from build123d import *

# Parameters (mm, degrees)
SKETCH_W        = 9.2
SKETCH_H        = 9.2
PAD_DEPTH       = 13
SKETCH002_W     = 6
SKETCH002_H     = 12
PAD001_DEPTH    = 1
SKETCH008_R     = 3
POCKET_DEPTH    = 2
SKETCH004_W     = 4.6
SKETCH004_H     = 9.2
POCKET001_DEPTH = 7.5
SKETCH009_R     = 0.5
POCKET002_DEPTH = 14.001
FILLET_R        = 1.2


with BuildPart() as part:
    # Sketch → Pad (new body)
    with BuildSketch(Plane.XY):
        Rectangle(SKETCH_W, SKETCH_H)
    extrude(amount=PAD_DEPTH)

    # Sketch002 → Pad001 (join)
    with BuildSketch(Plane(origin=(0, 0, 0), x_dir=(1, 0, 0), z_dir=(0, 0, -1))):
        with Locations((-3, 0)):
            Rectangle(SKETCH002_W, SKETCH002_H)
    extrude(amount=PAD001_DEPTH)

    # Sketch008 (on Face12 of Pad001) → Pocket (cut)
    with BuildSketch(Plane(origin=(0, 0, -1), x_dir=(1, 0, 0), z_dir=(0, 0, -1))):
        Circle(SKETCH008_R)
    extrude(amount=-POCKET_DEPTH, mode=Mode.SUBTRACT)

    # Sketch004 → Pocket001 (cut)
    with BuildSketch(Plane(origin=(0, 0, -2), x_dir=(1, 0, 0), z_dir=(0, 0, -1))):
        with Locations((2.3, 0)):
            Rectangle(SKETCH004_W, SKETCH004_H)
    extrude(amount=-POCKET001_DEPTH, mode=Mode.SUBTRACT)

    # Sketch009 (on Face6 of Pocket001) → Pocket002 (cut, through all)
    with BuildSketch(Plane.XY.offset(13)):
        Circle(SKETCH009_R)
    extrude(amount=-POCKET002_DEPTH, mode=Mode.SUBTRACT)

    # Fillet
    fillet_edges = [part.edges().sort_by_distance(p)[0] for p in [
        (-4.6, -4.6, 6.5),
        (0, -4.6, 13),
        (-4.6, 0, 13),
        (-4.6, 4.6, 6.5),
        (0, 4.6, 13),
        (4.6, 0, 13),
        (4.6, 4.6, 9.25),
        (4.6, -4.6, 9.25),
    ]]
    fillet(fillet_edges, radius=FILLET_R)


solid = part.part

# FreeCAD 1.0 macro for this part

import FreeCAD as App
import Part
import Sketcher
from FreeCAD import Vector


def edges_at(feature, points):
    """Names of the edges that pass closest to the given points."""
    edges = feature.Shape.Edges
    near = lambda p: min(range(len(edges)), key=lambda i: edges[i].distToShape(Part.Vertex(*p))[0])
    return sorted({f"Edge{near(p) + 1}" for p in points})

doc = App.newDocument("Part")
body = doc.addObject("PartDesign::Body", "Body")

# Sketch on XY plane
sketch1 = body.newObject("Sketcher::SketchObject", "Sketch")
sketch1.AttachmentSupport = (doc.getObject("XY_Plane"), [""])
sketch1.MapMode = "FlatFace"
sketch1.addGeometry(Part.LineSegment(Vector(-5, 5, 0), Vector(-5, -5, 0)), False)
sketch1.addGeometry(Part.LineSegment(Vector(-5, -5, 0), Vector(5, -5, 0)), False)
sketch1.addGeometry(Part.LineSegment(Vector(5, -5, 0), Vector(5, 5, 0)), False)
sketch1.addGeometry(Part.LineSegment(Vector(5, 5, 0), Vector(-5, 5, 0)), False)
sketch1.addConstraint(Sketcher.Constraint("Coincident", 0, 2, 1, 1))
sketch1.addConstraint(Sketcher.Constraint("Coincident", 1, 2, 2, 1))
sketch1.addConstraint(Sketcher.Constraint("Coincident", 2, 2, 3, 1))
sketch1.addConstraint(Sketcher.Constraint("Coincident", 3, 2, 0, 1))
sketch1.addConstraint(Sketcher.Constraint("Vertical", 0))
sketch1.addConstraint(Sketcher.Constraint("Horizontal", 1))
sketch1.addConstraint(Sketcher.Constraint("Vertical", 2))
sketch1.addConstraint(Sketcher.Constraint("Horizontal", 3))
sketch1.addConstraint(Sketcher.Constraint("Symmetric", 0, 2, 2, 2, -1, 1))
sketch1.addConstraint(Sketcher.Constraint("Equal", 3, 0))
sketch1.addConstraint(Sketcher.Constraint("DistanceX", 1, 1, 1, 2, 9.2))
pad1 = body.newObject("PartDesign::Pad", "Pad")
pad1.Profile = sketch1
pad1.Length = 13

# Sketch on XY plane
sketch2 = body.newObject("Sketcher::SketchObject", "Sketch001")
sketch2.AttachmentSupport = (doc.getObject("XY_Plane"), [""])
sketch2.MapMode = "FlatFace"
sketch2.addGeometry(Part.LineSegment(Vector(-6, -6, 0), Vector(-6, 6, 0)), False)
sketch2.addGeometry(Part.LineSegment(Vector(-6, 6, 0), Vector(0, 6, 0)), False)
sketch2.addGeometry(Part.LineSegment(Vector(0, 6, 0), Vector(0, -6, 0)), False)
sketch2.addGeometry(Part.LineSegment(Vector(0, -6, 0), Vector(-6, -6, 0)), False)
sketch2.addConstraint(Sketcher.Constraint("Coincident", 0, 2, 1, 1))
sketch2.addConstraint(Sketcher.Constraint("Coincident", 1, 2, 2, 1))
sketch2.addConstraint(Sketcher.Constraint("Coincident", 2, 2, 3, 1))
sketch2.addConstraint(Sketcher.Constraint("Coincident", 3, 2, 0, 1))
sketch2.addConstraint(Sketcher.Constraint("Vertical", 0))
sketch2.addConstraint(Sketcher.Constraint("Horizontal", 1))
sketch2.addConstraint(Sketcher.Constraint("Vertical", 2))
sketch2.addConstraint(Sketcher.Constraint("Horizontal", 3))
sketch2.addConstraint(Sketcher.Constraint("Symmetric", 1, 2, 2, 2, -1, 1))
sketch2.addConstraint(Sketcher.Constraint("DistanceX", 1, 1, 1, 2, 6.0))
sketch2.addConstraint(Sketcher.Constraint("DistanceY", 0, 1, 0, 2, 12.0))
pad2 = body.newObject("PartDesign::Pad", "Pad001")
pad2.Profile = sketch2
pad2.Length = 1
pad2.Reversed = True

# Sketch on XY plane
sketch3 = body.newObject("Sketcher::SketchObject", "Sketch002")
sketch3.AttachmentSupport = (doc.getObject("XY_Plane"), [""])
sketch3.MapMode = "FlatFace"
sketch3.AttachmentOffset = App.Placement(Vector(0, 0, -1), App.Rotation())
sketch3.addGeometry(Part.Circle(Vector(0, 0, 0), Vector(0, 0, 1), 3), False)
sketch3.addConstraint(Sketcher.Constraint("Coincident", 0, 3, -1, 1))
sketch3.addConstraint(Sketcher.Constraint("Diameter", 0, 6.0))
pocket1 = body.newObject("PartDesign::Pocket", "Pocket")
pocket1.Profile = sketch3
pocket1.Length = 2
pocket1.Reversed = True

# Sketch on XY plane
sketch4 = body.newObject("Sketcher::SketchObject", "Sketch003")
sketch4.AttachmentSupport = (doc.getObject("XY_Plane"), [""])
sketch4.MapMode = "FlatFace"
sketch4.AttachmentOffset = App.Placement(Vector(0, 0, -2), App.Rotation())
sketch4.addGeometry(Part.LineSegment(Vector(0, -4.6, 0), Vector(0, 4.6, 0)), False)
sketch4.addGeometry(Part.LineSegment(Vector(0, 4.6, 0), Vector(4.6, 4.6, 0)), False)
sketch4.addGeometry(Part.LineSegment(Vector(4.6, 4.6, 0), Vector(4.6, -4.6, 0)), False)
sketch4.addGeometry(Part.LineSegment(Vector(4.6, -4.6, 0), Vector(0, -4.6, 0)), False)
sketch4.addConstraint(Sketcher.Constraint("Coincident", 0, 2, 1, 1))
sketch4.addConstraint(Sketcher.Constraint("Coincident", 1, 2, 2, 1))
sketch4.addConstraint(Sketcher.Constraint("Coincident", 2, 2, 3, 1))
sketch4.addConstraint(Sketcher.Constraint("Coincident", 3, 2, 0, 1))
sketch4.addConstraint(Sketcher.Constraint("Vertical", 0))
sketch4.addConstraint(Sketcher.Constraint("Horizontal", 1))
sketch4.addConstraint(Sketcher.Constraint("Vertical", 2))
sketch4.addConstraint(Sketcher.Constraint("Horizontal", 3))
sketch4.addConstraint(Sketcher.Constraint("Symmetric", 0, 2, 3, 2, -1, 1))
sketch4.addConstraint(Sketcher.Constraint("DistanceX", 1, 1, 1, 2, 4.6))
sketch4.addConstraint(Sketcher.Constraint("DistanceY", 0, 1, 0, 2, 9.2))
pocket2 = body.newObject("PartDesign::Pocket", "Pocket001")
pocket2.Profile = sketch4
pocket2.Length = 7.5
pocket2.Reversed = True

# Sketch on XY plane
sketch5 = body.newObject("Sketcher::SketchObject", "Sketch004")
sketch5.AttachmentSupport = (doc.getObject("XY_Plane"), [""])
sketch5.MapMode = "FlatFace"
sketch5.AttachmentOffset = App.Placement(Vector(0, 0, 13), App.Rotation())
sketch5.addGeometry(Part.Circle(Vector(0, 0, 0), Vector(0, 0, 1), 0.5), False)
sketch5.addConstraint(Sketcher.Constraint("Coincident", 0, 3, -1, 1))
sketch5.addConstraint(Sketcher.Constraint("Diameter", 0, 1.0))
pocket3 = body.newObject("PartDesign::Pocket", "Pocket002")
pocket3.Profile = sketch5
pocket3.Type = "ThroughAll"
doc.recompute()

fillet = body.newObject("PartDesign::Fillet", "Fillet")
fillet.Base = (pocket3, edges_at(pocket3, [
    (-4.6, -4.6, 6.5),
    (0, -4.6, 13),
    (-4.6, 0, 13),
    (-4.6, 4.6, 6.5),
    (0, 4.6, 13),
    (4.6, 0, 13),
    (4.6, 4.6, 9.25),
    (4.6, -4.6, 9.25),
]))
fillet.Radius = 1.2

doc.recompute()
